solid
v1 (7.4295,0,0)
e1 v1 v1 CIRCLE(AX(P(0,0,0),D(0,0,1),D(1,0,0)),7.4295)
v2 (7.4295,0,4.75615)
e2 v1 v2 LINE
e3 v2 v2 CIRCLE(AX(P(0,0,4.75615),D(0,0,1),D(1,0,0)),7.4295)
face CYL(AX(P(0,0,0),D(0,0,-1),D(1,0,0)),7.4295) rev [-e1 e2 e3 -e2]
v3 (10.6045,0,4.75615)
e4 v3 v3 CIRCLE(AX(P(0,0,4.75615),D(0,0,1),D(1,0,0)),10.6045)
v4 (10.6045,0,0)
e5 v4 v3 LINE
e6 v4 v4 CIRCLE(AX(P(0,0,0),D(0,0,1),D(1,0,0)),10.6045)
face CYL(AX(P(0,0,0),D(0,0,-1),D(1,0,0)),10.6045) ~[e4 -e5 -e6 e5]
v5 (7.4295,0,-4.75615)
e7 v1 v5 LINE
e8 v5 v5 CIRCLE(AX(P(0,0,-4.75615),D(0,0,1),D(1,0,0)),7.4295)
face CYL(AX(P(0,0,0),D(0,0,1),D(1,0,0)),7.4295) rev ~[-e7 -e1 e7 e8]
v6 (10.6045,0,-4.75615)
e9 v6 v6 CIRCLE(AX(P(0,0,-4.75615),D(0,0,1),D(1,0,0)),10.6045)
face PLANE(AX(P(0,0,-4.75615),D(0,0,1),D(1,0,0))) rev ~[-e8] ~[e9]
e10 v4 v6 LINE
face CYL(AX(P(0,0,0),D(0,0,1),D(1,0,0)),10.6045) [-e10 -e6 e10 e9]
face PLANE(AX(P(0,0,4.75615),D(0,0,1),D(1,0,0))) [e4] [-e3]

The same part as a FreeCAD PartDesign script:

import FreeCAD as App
import Part
import Sketcher
from FreeCAD import Vector
Q = App.Units.Quantity

doc = App.newDocument("Part")
body = doc.addObject("PartDesign::Body", "Body")

sketch1 = body.newObject("Sketcher::SketchObject", "Sketch")
sketch1.AttachmentSupport = (doc.getObject("XY_Plane"), [""])
sketch1.MapMode = "FlatFace"
sketch1.addGeometry(Part.Circle(Vector(0, 0, 0), Vector(0, 0, 1), 10.6045), False)
sketch1.addGeometry(Part.Circle(Vector(0, 0, 0), Vector(0, 0, 1), 7.4295), False)
sketch1.addConstraint(Sketcher.Constraint("Coincident", 0, 3, -1, 1))
sketch1.addConstraint(Sketcher.Constraint("Coincident", 1, 3, -1, 1))
sketch1.addConstraint(Sketcher.Constraint("Diameter", 1, Q("0.585 in")))
sketch1.addConstraint(Sketcher.Constraint("Diameter", 0, Q("0.835 in")))
pad1 = body.newObject("PartDesign::Pad", "Pad")
pad1.Profile = sketch1
pad1.Length = Q("0.3745 in")
pad1.Midplane = True

doc.recompute()
